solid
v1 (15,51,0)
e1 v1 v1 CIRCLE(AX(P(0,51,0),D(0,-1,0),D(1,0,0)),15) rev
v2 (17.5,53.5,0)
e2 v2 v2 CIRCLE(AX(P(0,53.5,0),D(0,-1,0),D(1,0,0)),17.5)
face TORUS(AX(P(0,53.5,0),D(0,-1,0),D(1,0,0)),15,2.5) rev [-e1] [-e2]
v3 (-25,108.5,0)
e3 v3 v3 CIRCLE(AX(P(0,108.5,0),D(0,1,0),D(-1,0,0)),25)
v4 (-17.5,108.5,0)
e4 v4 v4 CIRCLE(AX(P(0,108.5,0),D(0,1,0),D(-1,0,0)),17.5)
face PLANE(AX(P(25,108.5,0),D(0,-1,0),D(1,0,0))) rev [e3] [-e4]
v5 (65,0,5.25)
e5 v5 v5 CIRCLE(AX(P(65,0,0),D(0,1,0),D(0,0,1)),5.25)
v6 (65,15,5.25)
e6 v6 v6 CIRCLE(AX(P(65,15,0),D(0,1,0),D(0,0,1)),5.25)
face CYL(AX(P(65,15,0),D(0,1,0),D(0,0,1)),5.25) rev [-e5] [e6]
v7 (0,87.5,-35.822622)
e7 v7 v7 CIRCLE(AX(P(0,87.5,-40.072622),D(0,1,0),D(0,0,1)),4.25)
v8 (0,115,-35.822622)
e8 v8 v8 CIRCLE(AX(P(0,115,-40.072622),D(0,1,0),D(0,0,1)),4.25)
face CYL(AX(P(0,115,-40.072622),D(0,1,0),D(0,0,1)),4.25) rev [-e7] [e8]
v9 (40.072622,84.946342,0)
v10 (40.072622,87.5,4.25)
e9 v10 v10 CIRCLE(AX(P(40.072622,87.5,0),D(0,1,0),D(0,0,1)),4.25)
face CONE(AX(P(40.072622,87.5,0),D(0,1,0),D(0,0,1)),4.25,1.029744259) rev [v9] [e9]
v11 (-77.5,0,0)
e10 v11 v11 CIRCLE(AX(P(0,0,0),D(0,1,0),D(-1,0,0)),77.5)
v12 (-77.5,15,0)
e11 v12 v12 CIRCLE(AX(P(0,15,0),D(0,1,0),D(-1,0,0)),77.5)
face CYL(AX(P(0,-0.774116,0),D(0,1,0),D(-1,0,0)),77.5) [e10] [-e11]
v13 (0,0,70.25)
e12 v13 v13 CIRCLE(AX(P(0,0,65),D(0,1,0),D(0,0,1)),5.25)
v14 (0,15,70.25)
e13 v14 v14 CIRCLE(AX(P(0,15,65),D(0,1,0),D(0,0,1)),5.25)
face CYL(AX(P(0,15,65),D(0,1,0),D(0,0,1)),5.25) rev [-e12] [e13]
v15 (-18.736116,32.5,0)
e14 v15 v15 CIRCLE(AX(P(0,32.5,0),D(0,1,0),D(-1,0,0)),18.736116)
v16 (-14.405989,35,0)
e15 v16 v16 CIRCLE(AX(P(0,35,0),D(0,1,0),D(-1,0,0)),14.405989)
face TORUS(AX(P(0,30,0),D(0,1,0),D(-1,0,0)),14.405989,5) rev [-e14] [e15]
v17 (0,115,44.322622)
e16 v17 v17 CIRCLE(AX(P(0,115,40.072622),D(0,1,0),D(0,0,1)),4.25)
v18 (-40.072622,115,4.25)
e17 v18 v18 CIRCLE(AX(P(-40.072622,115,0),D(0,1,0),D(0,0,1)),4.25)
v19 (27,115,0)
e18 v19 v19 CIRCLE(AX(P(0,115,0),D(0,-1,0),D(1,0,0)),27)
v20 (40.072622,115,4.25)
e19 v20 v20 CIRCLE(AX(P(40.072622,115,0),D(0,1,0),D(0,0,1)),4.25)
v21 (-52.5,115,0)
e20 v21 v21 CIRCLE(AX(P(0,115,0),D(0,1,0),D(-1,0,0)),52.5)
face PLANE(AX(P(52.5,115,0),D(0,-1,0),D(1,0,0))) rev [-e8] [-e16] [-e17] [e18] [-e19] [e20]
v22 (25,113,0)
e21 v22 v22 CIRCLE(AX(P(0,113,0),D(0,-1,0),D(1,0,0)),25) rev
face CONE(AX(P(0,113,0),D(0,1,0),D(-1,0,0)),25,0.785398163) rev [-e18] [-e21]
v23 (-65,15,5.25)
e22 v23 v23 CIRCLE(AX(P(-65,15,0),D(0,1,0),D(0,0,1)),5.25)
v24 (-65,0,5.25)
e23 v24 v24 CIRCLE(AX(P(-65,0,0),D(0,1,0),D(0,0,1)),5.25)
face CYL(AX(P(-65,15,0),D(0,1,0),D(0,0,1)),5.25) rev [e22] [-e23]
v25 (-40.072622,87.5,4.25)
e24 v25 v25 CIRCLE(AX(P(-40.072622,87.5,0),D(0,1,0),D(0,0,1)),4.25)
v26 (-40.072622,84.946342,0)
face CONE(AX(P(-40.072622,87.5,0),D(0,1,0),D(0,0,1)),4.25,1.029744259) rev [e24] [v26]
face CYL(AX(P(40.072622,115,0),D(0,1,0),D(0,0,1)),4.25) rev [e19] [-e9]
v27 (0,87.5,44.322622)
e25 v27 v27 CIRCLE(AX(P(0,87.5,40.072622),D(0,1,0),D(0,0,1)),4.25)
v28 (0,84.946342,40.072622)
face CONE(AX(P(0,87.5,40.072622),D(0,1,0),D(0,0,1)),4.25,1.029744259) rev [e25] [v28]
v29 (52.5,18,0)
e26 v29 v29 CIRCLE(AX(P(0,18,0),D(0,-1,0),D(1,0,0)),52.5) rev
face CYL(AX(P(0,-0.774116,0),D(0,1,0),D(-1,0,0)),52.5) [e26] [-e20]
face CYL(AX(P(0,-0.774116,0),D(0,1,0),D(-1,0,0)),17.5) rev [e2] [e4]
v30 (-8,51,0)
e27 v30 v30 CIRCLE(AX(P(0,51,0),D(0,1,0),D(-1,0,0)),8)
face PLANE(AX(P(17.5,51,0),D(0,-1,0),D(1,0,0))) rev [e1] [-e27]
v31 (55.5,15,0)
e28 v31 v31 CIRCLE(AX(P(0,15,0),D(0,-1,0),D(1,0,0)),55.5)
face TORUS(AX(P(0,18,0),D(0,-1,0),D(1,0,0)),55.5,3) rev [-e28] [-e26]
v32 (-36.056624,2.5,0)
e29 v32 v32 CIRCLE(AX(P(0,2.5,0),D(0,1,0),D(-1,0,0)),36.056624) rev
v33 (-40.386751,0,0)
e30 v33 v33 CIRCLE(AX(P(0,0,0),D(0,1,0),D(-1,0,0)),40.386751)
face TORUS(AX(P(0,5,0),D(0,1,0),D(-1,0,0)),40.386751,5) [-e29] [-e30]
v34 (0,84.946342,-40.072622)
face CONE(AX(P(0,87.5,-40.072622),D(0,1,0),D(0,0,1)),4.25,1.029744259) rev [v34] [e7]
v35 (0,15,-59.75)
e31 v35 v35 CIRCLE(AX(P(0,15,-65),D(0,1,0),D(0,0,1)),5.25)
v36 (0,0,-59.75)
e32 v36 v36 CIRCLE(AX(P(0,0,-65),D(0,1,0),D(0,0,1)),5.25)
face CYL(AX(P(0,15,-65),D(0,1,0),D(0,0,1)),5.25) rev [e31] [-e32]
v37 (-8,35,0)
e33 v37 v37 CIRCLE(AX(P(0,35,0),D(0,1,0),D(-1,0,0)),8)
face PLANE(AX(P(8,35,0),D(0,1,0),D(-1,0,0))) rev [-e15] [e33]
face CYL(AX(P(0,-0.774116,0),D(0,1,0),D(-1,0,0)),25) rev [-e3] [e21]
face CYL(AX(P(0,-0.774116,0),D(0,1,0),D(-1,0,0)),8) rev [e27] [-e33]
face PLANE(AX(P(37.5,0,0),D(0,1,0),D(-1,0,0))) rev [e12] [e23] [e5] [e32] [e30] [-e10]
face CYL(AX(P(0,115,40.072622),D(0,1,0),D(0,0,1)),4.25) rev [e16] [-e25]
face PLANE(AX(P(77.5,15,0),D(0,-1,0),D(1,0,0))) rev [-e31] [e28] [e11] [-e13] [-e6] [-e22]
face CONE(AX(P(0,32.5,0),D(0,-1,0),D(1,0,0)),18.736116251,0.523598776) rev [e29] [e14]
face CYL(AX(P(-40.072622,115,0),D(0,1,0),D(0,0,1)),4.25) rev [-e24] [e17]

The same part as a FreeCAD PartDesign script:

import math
import FreeCAD as App
import Part
import Sketcher
Q = App.Units.Quantity


def edges_at(feature, points):
    """Names of the edges that pass closest to the given points."""
    edges = feature.Shape.Edges
    near = lambda p: min(range(len(edges)), key=lambda i: edges[i].distToShape(Part.Vertex(*p))[0])
    return sorted({f"Edge{near(p) + 1}" for p in points})

doc = App.newDocument("Part")
body = doc.addObject("PartDesign::Body", "Body")

# Sketch on XY plane
sketch1 = body.newObject("Sketcher::SketchObject", "Sketch")
sketch1.AttachmentSupport = (doc.getObject("XY_Plane"), [""])
sketch1.MapMode = "FlatFace"
sketch1.addGeometry([
    Part.LineSegment(App.Vector(25, 115, 0), App.Vector(25, 108, 0)),  # 0
    Part.LineSegment(App.Vector(25, 108, 0), App.Vector(18, 108, 0)),  # 1
    Part.LineSegment(App.Vector(18, 108, 0), App.Vector(18, 51, 0)),  # 2
    Part.LineSegment(App.Vector(18, 51, 0), App.Vector(8, 51, 0)),  # 3
    Part.LineSegment(App.Vector(8, 51, 0), App.Vector(8, 35, 0)),  # 4
    Part.LineSegment(App.Vector(8, 35, 0), App.Vector(14, 35, 0)),  # 5
    Part.ArcOfCircle(Part.Circle(App.Vector(14, 30, 0), App.Vector(0, 0, 1), 5), math.radians(30), math.radians(90)),  # 6
    Part.LineSegment(App.Vector(19, 32, 0), App.Vector(38, 0, 0)),  # 7
    Part.LineSegment(App.Vector(38, 0, 0), App.Vector(78, 0, 0)),  # 8
    Part.LineSegment(App.Vector(78, 0, 0), App.Vector(78, 15, 0)),  # 9
    Part.LineSegment(App.Vector(78, 15, 0), App.Vector(52, 15, 0)),  # 10
    Part.LineSegment(App.Vector(52, 15, 0), App.Vector(52, 115, 0)),  # 11
    Part.LineSegment(App.Vector(52, 115, 0), App.Vector(25, 115, 0)),  # 12
], False)
sketch1.addConstraint([
    Sketcher.Constraint("Coincident", 0, 2, 1, 1),
    Sketcher.Constraint("Coincident", 1, 2, 2, 1),
    Sketcher.Constraint("Coincident", 2, 2, 3, 1),
    Sketcher.Constraint("Coincident", 3, 2, 4, 1),
    Sketcher.Constraint("Coincident", 4, 2, 5, 1),
    Sketcher.Constraint("Tangent", 5, 2, 6, 2),
    Sketcher.Constraint("Tangent", 6, 1, 7, 1),
    Sketcher.Constraint("Coincident", 7, 2, 8, 1),
    Sketcher.Constraint("Coincident", 8, 2, 9, 1),
    Sketcher.Constraint("Coincident", 9, 2, 10, 1),
    Sketcher.Constraint("Coincident", 10, 2, 11, 1),
    Sketcher.Constraint("Coincident", 11, 2, 12, 1),
    Sketcher.Constraint("Coincident", 12, 2, 0, 1),
    Sketcher.Constraint("Vertical", 0),
    Sketcher.Constraint("Horizontal", 1),
    Sketcher.Constraint("Vertical", 2),
    Sketcher.Constraint("Horizontal", 3),
    Sketcher.Constraint("Vertical", 4),
    Sketcher.Constraint("Horizontal", 5),
    Sketcher.Constraint("Horizontal", 8),
    Sketcher.Constraint("Vertical", 9),
    Sketcher.Constraint("Horizontal", 10),
    Sketcher.Constraint("Vertical", 11),
    Sketcher.Constraint("Horizontal", 12),
    Sketcher.Constraint("PointOnObject", 7, 2, -1),
    Sketcher.Constraint("Radius", 6, Q("5 mm")),
    Sketcher.Constraint("DistanceX", 8, 1, 8, 2, Q("40 mm")),
    Sketcher.Constraint("DistanceX", 10, 2, 10, 1, Q("25 mm")),
    Sketcher.Constraint("DistanceY", 4, 2, 4, 1, Q("16 mm")),
    Sketcher.Constraint("DistanceY", 9, 1, 9, 2, Q("15 mm")),
    Sketcher.Constraint("DistanceY", 11, 1, 11, 2, Q("100 mm")),
    Sketcher.Constraint("Angle", 7, Q("-60 deg")),
    Sketcher.Constraint("DistanceX", 1, 2, 1, 1, Q("7.5 mm")),
    Sketcher.Constraint("DistanceX", 3, 2, 3, 1, Q("9.5 mm")),
    Sketcher.Constraint("DistanceX", 12, 2, 12, 1, Q("27.5 mm")),
    Sketcher.Constraint("DistanceY", 0, 2, 0, 1, Q("6.5 mm")),
    Sketcher.Constraint("DistanceY", 2, 2, 2, 1, Q("57.5 mm")),
    Sketcher.Constraint("DistanceX", -1, 1, 0, 2, Q("25 mm")),
])
revolution = body.newObject("PartDesign::Revolution", "Revolution")
revolution.Profile = sketch1
revolution.ReferenceAxis = (sketch1, ["V_Axis"])
revolution.Angle = 360
doc.recompute()

fillet = body.newObject("PartDesign::Fillet", "Fillet")
fillet.Base = (revolution, edges_at(revolution, [(52.5, 15, 0)]))
fillet.Radius = 3
doc.recompute()

fillet2 = body.newObject("PartDesign::Fillet", "Fillet001")
fillet2.Base = (fillet, edges_at(fillet, [(37.5, 0, 0)]))
fillet2.Radius = 5
doc.recompute()

fillet3 = body.newObject("PartDesign::Fillet", "Fillet002")
fillet3.Base = (fillet2, edges_at(fillet2, [(17.5, 51, 0)]))
fillet3.Radius = 2.5
doc.recompute()

chamfer = body.newObject("PartDesign::Chamfer", "Chamfer")
chamfer.Base = (fillet3, edges_at(fillet3, [(25, 115, 0)]))
chamfer.Size = 2

# Sketch on XZ plane
sketch2 = body.newObject("Sketcher::SketchObject", "Sketch001")
sketch2.AttachmentSupport = (doc.getObject("XZ_Plane"), [""])
sketch2.MapMode = "FlatFace"
sketch2.AttachmentOffset = App.Placement(App.Vector(0, 0, -15), App.Rotation())
sketch2.addGeometry([
    Part.Circle(App.Vector(0, -65, 0), App.Vector(0, 0, 1), 5),
    Part.Circle(App.Vector(65, 0, 0), App.Vector(0, 0, 1), 5),
    Part.Circle(App.Vector(0, 65, 0), App.Vector(0, 0, 1), 5),
    Part.Circle(App.Vector(-65, 0, 0), App.Vector(0, 0, 1), 5),
], False)
sketch2.addConstraint([
    Sketcher.Constraint("Equal", 0, 1),
    Sketcher.Constraint("Equal", 1, 2),
    Sketcher.Constraint("Equal", 2, 3),
    Sketcher.Constraint("Symmetric", 0, 3, 2, 3, -1, 1),
    Sketcher.Constraint("Symmetric", 1, 3, 3, 3, -1, 1),
    Sketcher.Constraint("PointOnObject", 0, 3, -2),
    Sketcher.Constraint("PointOnObject", 1, 3, -1),
    Sketcher.Constraint("Diameter", 0, Q("10.5 mm")),
    Sketcher.Constraint("DistanceY", 0, 3, -1, 1, Q("65 mm")),
    Sketcher.Constraint("DistanceX", -1, 1, 1, 3, Q("65 mm")),
])
doc.recompute()
hole = body.newObject("PartDesign::Hole", "Hole")
hole.Profile = sketch2
hole.ThreadType = "None"
hole.Diameter = 10.5
hole.DepthType = "ThroughAll"
hole.Reversed = True

# Sketch on YZ plane
sketch3 = body.newObject("Sketcher::SketchObject", "Sketch002")
sketch3.AttachmentSupport = (doc.getObject("YZ_Plane"), [""])
sketch3.MapMode = "FlatFace"
sketch3.AttachmentOffset = App.Placement(App.Vector(0, 0, -40.072622), App.Rotation())
sketch3.addGeometry([
    Part.LineSegment(App.Vector(84.9, 0, 0), App.Vector(115, 0, 0)),
    Part.LineSegment(App.Vector(115, 0, 0), App.Vector(115, 4.2, 0)),
    Part.LineSegment(App.Vector(115, 4.2, 0), App.Vector(87.5, 4.2, 0)),
    Part.LineSegment(App.Vector(87.5, 4.2, 0), App.Vector(84.9, 0, 0)),
], False)
sketch3.addConstraint([
    Sketcher.Constraint("Coincident", 0, 2, 1, 1),
    Sketcher.Constraint("Coincident", 1, 2, 2, 1),
    Sketcher.Constraint("Coincident", 2, 2, 3, 1),
    Sketcher.Constraint("Coincident", 3, 2, 0, 1),
    Sketcher.Constraint("Horizontal", 0),
    Sketcher.Constraint("Vertical", 1),
    Sketcher.Constraint("Horizontal", 2),
    Sketcher.Constraint("PointOnObject", 0, 2, -1),
    Sketcher.Constraint("Angle", 3, Q("-121 deg")),
    Sketcher.Constraint("DistanceX", 2, 2, 2, 1, Q("27.5 mm")),
    Sketcher.Constraint("DistanceX", -1, 1, 0, 2, Q("115 mm")),
    Sketcher.Constraint("DistanceY", 1, 1, 1, 2, Q("4.25 mm")),
])
groove = body.newObject("PartDesign::Groove", "Groove")
groove.Profile = sketch3
groove.ReferenceAxis = (sketch3, ["H_Axis"])
groove.Angle = 360
doc.recompute()

polarpattern = body.newObject("PartDesign::PolarPattern", "PolarPattern")
polarpattern.Originals = [groove]
polarpattern.Axis = (doc.getObject("Y_Axis"), [""])
polarpattern.Angle = 360
polarpattern.Occurrences = 4
body.Tip = polarpattern

doc.recompute()
